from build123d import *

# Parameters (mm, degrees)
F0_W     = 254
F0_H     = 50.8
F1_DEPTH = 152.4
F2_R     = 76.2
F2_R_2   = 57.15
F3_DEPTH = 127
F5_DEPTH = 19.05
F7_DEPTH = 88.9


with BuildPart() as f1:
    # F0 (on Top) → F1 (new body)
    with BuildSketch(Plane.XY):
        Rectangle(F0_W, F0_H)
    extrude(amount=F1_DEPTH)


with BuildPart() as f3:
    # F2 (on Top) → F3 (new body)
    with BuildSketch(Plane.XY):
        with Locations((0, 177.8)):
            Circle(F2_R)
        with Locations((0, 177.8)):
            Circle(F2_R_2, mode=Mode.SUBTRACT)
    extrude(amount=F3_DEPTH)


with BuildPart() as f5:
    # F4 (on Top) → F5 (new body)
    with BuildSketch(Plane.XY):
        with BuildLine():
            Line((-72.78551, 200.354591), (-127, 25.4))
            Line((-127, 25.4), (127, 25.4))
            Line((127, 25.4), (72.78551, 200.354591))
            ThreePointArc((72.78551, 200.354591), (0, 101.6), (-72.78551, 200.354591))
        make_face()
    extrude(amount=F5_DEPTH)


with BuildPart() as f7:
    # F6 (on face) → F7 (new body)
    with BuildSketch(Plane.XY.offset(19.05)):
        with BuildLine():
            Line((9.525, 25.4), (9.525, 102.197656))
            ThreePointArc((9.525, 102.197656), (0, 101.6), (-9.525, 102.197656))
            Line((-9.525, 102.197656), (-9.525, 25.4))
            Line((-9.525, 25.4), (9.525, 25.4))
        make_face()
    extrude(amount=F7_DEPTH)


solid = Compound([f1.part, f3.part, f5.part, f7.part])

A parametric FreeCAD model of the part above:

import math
import FreeCAD as App
import Part
import Sketcher
from FreeCAD import Vector
Q = App.Units.Quantity


def add_polygon(sketch, points):
    """Adds a closed chain of lines whose ends are joined by coincident constraints."""
    first, n = sketch.GeometryCount, len(points)
    for a, b in zip(points, points[1:] + points[:1]):
        sketch.addGeometry(Part.LineSegment(App.Vector(*a, 0), App.Vector(*b, 0)), False)
    for i in range(n):
        sketch.addConstraint(Sketcher.Constraint("Coincident", first + i, 2, first + (i + 1) % n, 1))

doc = App.newDocument("Part")
body = doc.addObject("PartDesign::Body", "Body")

# Sketch on XY plane
sketch1 = doc.addObject("Sketcher::SketchObject", "Sketch")
body.addObject(sketch1)
sketch1.AttachmentSupport = (doc.XY_Plane, [""])
sketch1.MapMode = "FlatFace"
add_polygon(sketch1, [(-127, 25), (-127, -25), (127, -25), (127, 25)])  # lines 0-3
sketch1.addConstraint(Sketcher.Constraint("Vertical", 0))
sketch1.addConstraint(Sketcher.Constraint("Horizontal", 1))
sketch1.addConstraint(Sketcher.Constraint("Vertical", 2))
sketch1.addConstraint(Sketcher.Constraint("Horizontal", 3))
sketch1.addConstraint(Sketcher.Constraint("Symmetric", 0, 2, 2, 2, -1, 1))
sketch1.addConstraint(Sketcher.Constraint("DistanceX", 1, 1, 1, 2, Q("10 in")))
sketch1.addConstraint(Sketcher.Constraint("DistanceY", 0, 2, 0, 1, Q("2 in")))
pad1 = doc.addObject("PartDesign::Pad", "Pad")
body.addObject(pad1)
pad1.Profile = sketch1
pad1.Length = Q("6 in")
body2 = doc.addObject("PartDesign::Body", "Body001")

# Sketch on XY plane
sketch2 = doc.addObject("Sketcher::SketchObject", "Sketch001")
body2.addObject(sketch2)
sketch2.AttachmentSupport = (doc.getObject("XY_Plane001"), [""])
sketch2.MapMode = "FlatFace"
sketch2.addGeometry(Part.Circle(Vector(0, 178, 0), Vector(0, 0, 1), 76), False)
sketch2.addGeometry(Part.Circle(Vector(0, 178, 0), Vector(0, 0, 1), 57), False)
sketch2.addConstraint(Sketcher.Constraint("Coincident", 1, 3, 0, 3))
sketch2.addConstraint(Sketcher.Constraint("PointOnObject", 0, 3, -2))
sketch2.addConstraint(Sketcher.Constraint("Diameter", 0, Q("6 in")))
sketch2.addConstraint(Sketcher.Constraint("Diameter", 1, Q("4.5 in")))
sketch2.addConstraint(Sketcher.Constraint("DistanceY", -1, 1, 0, 3, Q("7 in")))
pad2 = doc.addObject("PartDesign::Pad", "Pad001")
body2.addObject(pad2)
pad2.Profile = sketch2
pad2.Length = Q("5 in")
body3 = doc.addObject("PartDesign::Body", "Body002")

# Sketch on XY plane
sketch3 = doc.addObject("Sketcher::SketchObject", "Sketch002")
body3.addObject(sketch3)
sketch3.AttachmentSupport = (doc.getObject("XY_Plane002"), [""])
sketch3.MapMode = "FlatFace"
sketch3.addGeometry(Part.LineSegment(Vector(-73, 200, 0), Vector(-127, 25, 0)), False)
sketch3.addGeometry(Part.LineSegment(Vector(-127, 25, 0), Vector(127, 25, 0)), False)
sketch3.addGeometry(Part.LineSegment(Vector(127, 25, 0), Vector(73, 200, 0)), False)
sketch3.addGeometry(Part.ArcOfCircle(Part.Circle(Vector(0, 178, 0), Vector(0, 0, 1), 76), math.radians(163), math.radians(377)), False)
sketch3.addConstraint(Sketcher.Constraint("Coincident", 0, 2, 1, 1))
sketch3.addConstraint(Sketcher.Constraint("Coincident", 1, 2, 2, 1))
sketch3.addConstraint(Sketcher.Constraint("Tangent", 2, 2, 3, 2))
sketch3.addConstraint(Sketcher.Constraint("Tangent", 3, 1, 0, 1))
sketch3.addConstraint(Sketcher.Constraint("Horizontal", 1))
sketch3.addConstraint(Sketcher.Constraint("Symmetric", 2, 2, 3, 1, -2))
sketch3.addConstraint(Sketcher.Constraint("Radius", 3, Q("3 in")))
sketch3.addConstraint(Sketcher.Constraint("DistanceX", 1, 1, 1, 2, Q("10 in")))
sketch3.addConstraint(Sketcher.Constraint("DistanceY", -1, 1, 3, 3, Q("7 in")))
sketch3.addConstraint(Sketcher.Constraint("DistanceY", -1, 1, 0, 2, Q("1 in")))
pad3 = doc.addObject("PartDesign::Pad", "Pad002")
body3.addObject(pad3)
pad3.Profile = sketch3
pad3.Length = Q("0.75 in")
body4 = doc.addObject("PartDesign::Body", "Body003")

# Sketch on XY plane
sketch4 = doc.addObject("Sketcher::SketchObject", "Sketch003")
body4.addObject(sketch4)
sketch4.AttachmentSupport = (doc.getObject("XY_Plane003"), [""])
sketch4.MapMode = "FlatFace"
sketch4.AttachmentOffset = App.Placement(Vector(0, 0, 0.75 * 25.4), App.Rotation())
sketch4.addGeometry(Part.LineSegment(Vector(10, 25, 0), Vector(10, 102, 0)), False)
sketch4.addGeometry(Part.ArcOfCircle(Part.Circle(Vector(0, 178, 0), Vector(0, 0, 1), 76), math.radians(-97.18), math.radians(-82.82)), False)
sketch4.addGeometry(Part.LineSegment(Vector(-10, 102, 0), Vector(-10, 25, 0)), False)
sketch4.addGeometry(Part.LineSegment(Vector(-10, 25, 0), Vector(10, 25, 0)), False)
sketch4.addConstraint(Sketcher.Constraint("Coincident", 0, 2, 1, 2))
sketch4.addConstraint(Sketcher.Constraint("Coincident", 1, 1, 2, 1))
sketch4.addConstraint(Sketcher.Constraint("Coincident", 2, 2, 3, 1))
sketch4.addConstraint(Sketcher.Constraint("Coincident", 3, 2, 0, 1))
sketch4.addConstraint(Sketcher.Constraint("Vertical", 0))
sketch4.addConstraint(Sketcher.Constraint("Vertical", 2))
sketch4.addConstraint(Sketcher.Constraint("Horizontal", 3))
sketch4.addConstraint(Sketcher.Constraint("Symmetric", 0, 2, 1, 1, -2))
sketch4.addConstraint(Sketcher.Constraint("DistanceY", -1, 1, 2, 2, Q("1 in")))
sketch4.addConstraint(Sketcher.Constraint("DistanceX", 3, 1, 3, 2, Q("0.75 in")))
sketch4.addConstraint(Sketcher.Constraint("Radius", 1, Q("76.200036 mm")))
sketch4.addConstraint(Sketcher.Constraint("DistanceY", 0, 1, 0, 2, Q("76.797656 mm")))
pad4 = doc.addObject("PartDesign::Pad", "Pad003")
body4.addObject(pad4)
pad4.Profile = sketch4
pad4.Length = Q("3.5 in")

doc.recompute()
